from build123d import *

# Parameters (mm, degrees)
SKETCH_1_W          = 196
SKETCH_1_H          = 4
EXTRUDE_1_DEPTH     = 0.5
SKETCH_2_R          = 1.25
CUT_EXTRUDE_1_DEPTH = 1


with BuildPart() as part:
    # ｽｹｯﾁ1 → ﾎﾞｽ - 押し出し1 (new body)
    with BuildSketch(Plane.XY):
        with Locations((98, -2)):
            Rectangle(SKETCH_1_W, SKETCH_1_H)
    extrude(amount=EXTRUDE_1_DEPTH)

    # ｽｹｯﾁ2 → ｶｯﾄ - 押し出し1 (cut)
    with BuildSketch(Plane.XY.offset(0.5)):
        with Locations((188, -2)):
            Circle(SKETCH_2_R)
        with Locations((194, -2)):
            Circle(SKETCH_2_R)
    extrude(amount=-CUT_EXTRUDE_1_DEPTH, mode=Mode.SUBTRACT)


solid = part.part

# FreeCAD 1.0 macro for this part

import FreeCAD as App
import Part
import Sketcher
from FreeCAD import Vector
Q = App.Units.Quantity


def add_polygon(sketch, points):
    """Adds a closed chain of lines whose ends are joined by coincident constraints."""
    first, n = sketch.GeometryCount, len(points)
    for a, b in zip(points, points[1:] + points[:1]):
        sketch.addGeometry(Part.LineSegment(App.Vector(*a, 0), App.Vector(*b, 0)), False)
    for i in range(n):
        sketch.addConstraint(Sketcher.Constraint("Coincident", first + i, 2, first + (i + 1) % n, 1))

doc = App.newDocument("Part")
body = doc.addObject("PartDesign::Body", "Body")

# Sketch on XY plane
sketch1 = body.newObject("Sketcher::SketchObject", "Sketch")
sketch1.AttachmentSupport = (doc.getObject("XY_Plane"), [""])
sketch1.MapMode = "FlatFace"
add_polygon(sketch1, [(0, 0), (0, -4), (196, -4), (196, 0)])  # lines 0-3
sketch1.addConstraint(Sketcher.Constraint("Vertical", 0))
sketch1.addConstraint(Sketcher.Constraint("Horizontal", 1))
sketch1.addConstraint(Sketcher.Constraint("Vertical", 2))
sketch1.addConstraint(Sketcher.Constraint("Horizontal", 3))
sketch1.addConstraint(Sketcher.Constraint("Coincident", 3, 2, -1, 1))
sketch1.addConstraint(Sketcher.Constraint("DistanceX", 1, 1, 1, 2, Q("196 mm")))
sketch1.addConstraint(Sketcher.Constraint("DistanceY", 0, 2, 0, 1, Q("4 mm")))
pad1 = body.newObject("PartDesign::Pad", "Pad")
pad1.Profile = sketch1
pad1.Length = 0.5

# Sketch on XY plane
sketch2 = body.newObject("Sketcher::SketchObject", "Sketch001")
sketch2.AttachmentSupport = (doc.getObject("XY_Plane"), [""])
sketch2.MapMode = "FlatFace"
sketch2.AttachmentOffset = App.Placement(Vector(0, 0, 0.5), App.Rotation())
sketch2.addGeometry(Part.Circle(Vector(188, -2, 0), Vector(0, 0, 1), 1.2), False)
sketch2.addGeometry(Part.Circle(Vector(194, -2, 0), Vector(0, 0, 1), 1.2), False)
sketch2.addConstraint(Sketcher.Constraint("Equal", 0, 1))
sketch2.addConstraint(Sketcher.Constraint("Horizontal", 0, 3, 1, 3))
sketch2.addConstraint(Sketcher.Constraint("Diameter", 0, Q("2.5 mm")))
sketch2.addConstraint(Sketcher.Constraint("DistanceX", -1, 1, 0, 3, Q("188 mm")))
sketch2.addConstraint(Sketcher.Constraint("DistanceY", 0, 3, -1, 1, Q("2 mm")))
sketch2.addConstraint(Sketcher.Constraint("DistanceX", -1, 1, 1, 3, Q("194 mm")))
pocket1 = body.newObject("PartDesign::Pocket", "Pocket")
pocket1.Profile = sketch2
pocket1.Length = 1

doc.recompute()
